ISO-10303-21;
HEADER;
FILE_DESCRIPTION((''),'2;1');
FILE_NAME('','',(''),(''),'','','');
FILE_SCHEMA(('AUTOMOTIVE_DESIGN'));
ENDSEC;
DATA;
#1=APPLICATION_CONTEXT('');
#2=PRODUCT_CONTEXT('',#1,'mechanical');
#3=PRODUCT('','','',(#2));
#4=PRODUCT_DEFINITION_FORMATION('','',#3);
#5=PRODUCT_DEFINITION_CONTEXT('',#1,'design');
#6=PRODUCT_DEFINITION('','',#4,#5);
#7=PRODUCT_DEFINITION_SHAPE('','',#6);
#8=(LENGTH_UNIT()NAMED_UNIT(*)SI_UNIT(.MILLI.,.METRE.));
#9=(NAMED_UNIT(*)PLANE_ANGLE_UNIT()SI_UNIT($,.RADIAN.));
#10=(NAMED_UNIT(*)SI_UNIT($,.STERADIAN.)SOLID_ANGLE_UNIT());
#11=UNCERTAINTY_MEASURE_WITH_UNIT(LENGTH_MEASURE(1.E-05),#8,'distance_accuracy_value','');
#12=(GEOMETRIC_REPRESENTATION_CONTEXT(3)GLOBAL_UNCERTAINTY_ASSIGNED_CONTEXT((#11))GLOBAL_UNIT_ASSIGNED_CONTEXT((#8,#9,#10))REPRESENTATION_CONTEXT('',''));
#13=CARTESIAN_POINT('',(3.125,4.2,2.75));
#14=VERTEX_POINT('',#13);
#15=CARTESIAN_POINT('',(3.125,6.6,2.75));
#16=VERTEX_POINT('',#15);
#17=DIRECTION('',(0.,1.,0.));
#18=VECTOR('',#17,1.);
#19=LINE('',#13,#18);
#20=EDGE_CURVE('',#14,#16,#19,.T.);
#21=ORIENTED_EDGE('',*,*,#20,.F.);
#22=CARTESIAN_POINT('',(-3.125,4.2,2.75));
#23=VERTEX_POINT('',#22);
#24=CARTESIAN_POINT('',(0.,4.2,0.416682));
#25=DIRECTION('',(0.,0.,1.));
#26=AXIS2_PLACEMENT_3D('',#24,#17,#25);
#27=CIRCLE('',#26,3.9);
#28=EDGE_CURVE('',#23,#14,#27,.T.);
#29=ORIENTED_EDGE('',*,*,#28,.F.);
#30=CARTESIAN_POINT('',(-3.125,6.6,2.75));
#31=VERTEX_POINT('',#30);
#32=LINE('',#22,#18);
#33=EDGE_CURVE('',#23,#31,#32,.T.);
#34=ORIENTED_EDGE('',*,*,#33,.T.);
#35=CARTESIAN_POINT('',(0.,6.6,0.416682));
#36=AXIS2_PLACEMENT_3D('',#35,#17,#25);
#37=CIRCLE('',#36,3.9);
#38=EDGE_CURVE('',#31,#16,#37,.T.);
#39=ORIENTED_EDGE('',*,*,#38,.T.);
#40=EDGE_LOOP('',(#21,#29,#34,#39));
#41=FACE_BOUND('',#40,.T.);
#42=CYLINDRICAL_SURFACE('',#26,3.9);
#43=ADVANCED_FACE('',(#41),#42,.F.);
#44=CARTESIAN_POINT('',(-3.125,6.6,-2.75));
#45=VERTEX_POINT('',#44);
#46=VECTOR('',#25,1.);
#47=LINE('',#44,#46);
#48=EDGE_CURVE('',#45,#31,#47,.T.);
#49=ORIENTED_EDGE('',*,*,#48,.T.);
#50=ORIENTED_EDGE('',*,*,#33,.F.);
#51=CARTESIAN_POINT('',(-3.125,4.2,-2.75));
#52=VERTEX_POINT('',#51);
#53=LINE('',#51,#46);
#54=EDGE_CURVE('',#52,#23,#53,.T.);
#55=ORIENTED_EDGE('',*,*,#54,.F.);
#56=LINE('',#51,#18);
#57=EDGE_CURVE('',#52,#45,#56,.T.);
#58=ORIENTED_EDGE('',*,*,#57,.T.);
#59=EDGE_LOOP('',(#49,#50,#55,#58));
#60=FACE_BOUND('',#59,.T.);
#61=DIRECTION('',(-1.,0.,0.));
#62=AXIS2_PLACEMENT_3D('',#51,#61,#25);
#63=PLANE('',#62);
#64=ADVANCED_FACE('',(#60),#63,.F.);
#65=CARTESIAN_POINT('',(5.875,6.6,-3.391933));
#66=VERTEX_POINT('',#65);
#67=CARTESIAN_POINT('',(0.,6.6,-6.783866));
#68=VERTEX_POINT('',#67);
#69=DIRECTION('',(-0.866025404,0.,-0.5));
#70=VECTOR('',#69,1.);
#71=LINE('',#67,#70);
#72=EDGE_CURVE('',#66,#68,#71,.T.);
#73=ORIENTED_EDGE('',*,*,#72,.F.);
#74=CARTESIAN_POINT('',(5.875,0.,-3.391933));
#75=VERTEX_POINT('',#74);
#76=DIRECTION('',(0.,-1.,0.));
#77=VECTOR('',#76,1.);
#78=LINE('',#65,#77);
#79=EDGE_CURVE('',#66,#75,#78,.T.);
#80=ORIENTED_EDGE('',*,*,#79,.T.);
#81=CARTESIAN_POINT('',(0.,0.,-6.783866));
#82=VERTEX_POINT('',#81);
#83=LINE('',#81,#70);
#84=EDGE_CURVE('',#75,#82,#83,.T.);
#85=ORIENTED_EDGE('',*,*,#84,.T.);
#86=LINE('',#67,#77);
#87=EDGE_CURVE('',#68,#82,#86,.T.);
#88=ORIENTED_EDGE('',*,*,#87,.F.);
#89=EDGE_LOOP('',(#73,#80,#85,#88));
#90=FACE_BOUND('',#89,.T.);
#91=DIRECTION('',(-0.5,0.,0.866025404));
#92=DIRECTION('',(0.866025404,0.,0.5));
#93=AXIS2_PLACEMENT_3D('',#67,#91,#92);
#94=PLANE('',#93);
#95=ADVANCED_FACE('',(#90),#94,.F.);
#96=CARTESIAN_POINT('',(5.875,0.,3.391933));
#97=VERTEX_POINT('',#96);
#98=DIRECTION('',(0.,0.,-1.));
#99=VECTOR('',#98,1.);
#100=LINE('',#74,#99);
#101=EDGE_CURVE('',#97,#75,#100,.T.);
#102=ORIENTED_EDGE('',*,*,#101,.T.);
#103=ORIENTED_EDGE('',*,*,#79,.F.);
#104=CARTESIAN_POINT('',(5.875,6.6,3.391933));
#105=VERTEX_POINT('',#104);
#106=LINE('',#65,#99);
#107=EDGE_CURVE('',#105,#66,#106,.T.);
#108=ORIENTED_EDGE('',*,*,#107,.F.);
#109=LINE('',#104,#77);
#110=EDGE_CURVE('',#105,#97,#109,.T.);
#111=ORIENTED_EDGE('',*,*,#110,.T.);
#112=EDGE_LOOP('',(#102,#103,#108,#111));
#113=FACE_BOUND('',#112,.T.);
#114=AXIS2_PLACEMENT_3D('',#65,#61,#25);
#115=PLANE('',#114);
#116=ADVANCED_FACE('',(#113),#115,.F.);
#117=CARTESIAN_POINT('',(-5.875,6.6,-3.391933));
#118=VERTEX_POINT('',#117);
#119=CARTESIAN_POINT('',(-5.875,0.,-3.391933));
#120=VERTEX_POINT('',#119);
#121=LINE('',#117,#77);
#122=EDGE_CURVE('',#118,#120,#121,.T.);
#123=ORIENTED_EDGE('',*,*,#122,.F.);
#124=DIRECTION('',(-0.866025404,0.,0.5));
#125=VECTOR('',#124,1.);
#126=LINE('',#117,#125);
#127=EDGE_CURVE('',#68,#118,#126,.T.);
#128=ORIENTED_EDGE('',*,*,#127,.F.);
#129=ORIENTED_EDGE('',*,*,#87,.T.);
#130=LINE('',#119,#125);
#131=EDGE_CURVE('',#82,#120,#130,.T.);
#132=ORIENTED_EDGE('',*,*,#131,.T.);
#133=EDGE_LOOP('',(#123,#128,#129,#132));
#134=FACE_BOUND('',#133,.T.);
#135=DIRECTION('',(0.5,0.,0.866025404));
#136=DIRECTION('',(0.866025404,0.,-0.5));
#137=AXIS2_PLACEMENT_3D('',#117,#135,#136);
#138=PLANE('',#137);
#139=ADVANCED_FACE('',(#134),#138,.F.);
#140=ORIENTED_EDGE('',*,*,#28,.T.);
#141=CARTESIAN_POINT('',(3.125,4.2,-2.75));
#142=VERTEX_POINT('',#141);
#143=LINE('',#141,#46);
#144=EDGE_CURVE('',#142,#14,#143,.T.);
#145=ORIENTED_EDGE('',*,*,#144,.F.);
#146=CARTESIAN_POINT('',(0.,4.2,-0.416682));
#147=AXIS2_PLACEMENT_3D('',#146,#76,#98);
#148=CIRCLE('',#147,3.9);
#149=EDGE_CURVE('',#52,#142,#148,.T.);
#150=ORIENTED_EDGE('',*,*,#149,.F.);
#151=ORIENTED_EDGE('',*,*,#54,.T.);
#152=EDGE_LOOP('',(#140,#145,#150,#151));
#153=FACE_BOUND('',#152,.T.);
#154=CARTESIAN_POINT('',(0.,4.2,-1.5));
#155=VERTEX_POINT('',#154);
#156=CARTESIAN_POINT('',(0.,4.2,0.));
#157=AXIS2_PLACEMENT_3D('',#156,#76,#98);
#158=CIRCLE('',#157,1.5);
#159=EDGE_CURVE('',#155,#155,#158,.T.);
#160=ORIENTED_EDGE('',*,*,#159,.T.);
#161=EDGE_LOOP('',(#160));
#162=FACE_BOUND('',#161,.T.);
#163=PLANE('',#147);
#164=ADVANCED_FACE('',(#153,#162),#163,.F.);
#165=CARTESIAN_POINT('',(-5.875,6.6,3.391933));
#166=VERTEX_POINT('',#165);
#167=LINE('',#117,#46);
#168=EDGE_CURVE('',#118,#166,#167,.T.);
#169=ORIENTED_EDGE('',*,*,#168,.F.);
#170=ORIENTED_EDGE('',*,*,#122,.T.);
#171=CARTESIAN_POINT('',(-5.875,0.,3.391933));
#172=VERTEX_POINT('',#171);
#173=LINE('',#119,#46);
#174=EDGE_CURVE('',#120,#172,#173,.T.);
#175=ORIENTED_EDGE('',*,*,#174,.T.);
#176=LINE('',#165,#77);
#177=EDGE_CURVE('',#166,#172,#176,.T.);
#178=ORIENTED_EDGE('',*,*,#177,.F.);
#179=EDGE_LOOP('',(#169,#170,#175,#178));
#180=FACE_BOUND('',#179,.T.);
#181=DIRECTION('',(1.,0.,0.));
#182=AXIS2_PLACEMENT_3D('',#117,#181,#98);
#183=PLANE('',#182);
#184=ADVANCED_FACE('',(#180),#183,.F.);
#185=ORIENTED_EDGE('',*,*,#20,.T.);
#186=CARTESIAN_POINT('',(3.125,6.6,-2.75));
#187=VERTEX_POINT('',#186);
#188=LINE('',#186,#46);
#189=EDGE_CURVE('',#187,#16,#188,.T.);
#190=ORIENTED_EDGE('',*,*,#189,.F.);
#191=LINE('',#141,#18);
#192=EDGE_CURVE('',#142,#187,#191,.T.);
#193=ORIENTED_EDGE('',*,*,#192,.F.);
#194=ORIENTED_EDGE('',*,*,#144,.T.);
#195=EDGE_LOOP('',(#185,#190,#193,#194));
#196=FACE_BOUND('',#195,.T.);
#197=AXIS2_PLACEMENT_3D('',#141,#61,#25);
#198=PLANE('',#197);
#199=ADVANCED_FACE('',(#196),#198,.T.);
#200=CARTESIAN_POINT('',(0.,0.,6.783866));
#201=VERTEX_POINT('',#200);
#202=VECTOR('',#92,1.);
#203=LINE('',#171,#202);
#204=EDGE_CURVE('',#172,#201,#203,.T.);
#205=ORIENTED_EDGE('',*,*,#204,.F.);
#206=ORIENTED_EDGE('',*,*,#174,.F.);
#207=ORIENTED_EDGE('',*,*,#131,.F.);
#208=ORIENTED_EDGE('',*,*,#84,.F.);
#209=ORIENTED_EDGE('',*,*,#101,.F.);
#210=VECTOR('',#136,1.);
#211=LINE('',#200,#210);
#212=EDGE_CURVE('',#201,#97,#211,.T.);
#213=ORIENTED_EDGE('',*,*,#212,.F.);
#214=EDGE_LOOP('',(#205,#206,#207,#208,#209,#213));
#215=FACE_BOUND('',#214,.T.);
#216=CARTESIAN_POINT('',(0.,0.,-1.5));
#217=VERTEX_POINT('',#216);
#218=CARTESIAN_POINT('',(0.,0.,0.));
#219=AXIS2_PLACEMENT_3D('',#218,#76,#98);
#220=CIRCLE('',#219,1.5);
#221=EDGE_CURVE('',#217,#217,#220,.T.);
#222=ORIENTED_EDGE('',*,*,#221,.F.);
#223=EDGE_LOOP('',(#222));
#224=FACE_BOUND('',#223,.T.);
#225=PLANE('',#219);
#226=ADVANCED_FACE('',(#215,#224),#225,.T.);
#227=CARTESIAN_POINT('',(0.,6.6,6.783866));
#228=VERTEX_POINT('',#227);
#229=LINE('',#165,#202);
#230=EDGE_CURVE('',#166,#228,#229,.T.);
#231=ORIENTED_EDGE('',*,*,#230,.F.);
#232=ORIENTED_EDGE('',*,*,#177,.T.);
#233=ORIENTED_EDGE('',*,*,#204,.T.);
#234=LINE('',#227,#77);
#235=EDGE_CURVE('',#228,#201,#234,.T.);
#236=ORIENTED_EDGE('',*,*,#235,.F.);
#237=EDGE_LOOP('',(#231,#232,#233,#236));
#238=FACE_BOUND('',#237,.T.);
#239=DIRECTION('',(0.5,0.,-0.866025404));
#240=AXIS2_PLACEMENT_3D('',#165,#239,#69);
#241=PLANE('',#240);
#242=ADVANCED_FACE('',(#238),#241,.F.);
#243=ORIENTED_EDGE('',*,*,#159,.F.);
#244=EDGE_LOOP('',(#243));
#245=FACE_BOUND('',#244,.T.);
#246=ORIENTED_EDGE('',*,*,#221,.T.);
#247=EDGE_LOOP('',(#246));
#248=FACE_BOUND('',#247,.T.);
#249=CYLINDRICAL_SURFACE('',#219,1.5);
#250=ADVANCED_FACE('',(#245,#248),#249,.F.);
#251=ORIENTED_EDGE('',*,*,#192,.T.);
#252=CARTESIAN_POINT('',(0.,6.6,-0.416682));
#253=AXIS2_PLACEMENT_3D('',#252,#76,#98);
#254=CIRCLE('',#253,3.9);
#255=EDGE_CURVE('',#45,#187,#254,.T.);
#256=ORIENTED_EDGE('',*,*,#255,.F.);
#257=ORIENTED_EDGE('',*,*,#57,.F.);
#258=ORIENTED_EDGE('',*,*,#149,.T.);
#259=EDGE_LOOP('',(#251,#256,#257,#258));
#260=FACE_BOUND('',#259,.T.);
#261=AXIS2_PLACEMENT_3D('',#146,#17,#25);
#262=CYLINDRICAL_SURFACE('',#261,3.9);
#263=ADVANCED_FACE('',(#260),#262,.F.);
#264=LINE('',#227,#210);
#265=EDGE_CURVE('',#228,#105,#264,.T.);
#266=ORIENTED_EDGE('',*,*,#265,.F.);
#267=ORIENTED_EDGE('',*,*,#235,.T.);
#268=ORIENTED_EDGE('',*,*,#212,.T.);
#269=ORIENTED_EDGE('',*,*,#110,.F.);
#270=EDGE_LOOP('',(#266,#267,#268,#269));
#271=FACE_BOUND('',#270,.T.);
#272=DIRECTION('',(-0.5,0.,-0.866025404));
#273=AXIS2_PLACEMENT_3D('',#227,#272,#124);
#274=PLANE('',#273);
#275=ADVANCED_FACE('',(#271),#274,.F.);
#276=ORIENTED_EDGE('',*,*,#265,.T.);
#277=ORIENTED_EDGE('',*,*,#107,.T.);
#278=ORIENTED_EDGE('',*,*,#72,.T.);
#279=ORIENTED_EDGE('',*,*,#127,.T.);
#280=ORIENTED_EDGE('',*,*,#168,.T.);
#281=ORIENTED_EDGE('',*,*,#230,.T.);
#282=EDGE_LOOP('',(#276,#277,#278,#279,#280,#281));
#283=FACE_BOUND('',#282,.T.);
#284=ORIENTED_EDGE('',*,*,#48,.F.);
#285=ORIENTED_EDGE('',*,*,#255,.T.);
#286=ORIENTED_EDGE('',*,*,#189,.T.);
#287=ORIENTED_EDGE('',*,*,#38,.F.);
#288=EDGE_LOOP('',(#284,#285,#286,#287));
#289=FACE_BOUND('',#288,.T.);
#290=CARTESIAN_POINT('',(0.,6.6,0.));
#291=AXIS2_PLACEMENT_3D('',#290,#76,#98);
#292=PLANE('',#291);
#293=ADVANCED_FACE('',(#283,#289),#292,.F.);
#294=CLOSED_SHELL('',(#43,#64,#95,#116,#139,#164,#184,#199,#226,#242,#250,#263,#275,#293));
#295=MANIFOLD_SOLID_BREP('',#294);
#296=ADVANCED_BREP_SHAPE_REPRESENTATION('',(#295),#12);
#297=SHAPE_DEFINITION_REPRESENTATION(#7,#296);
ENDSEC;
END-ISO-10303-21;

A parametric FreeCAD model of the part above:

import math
import FreeCAD as App
import Part
import Sketcher
from FreeCAD import Vector
Q = App.Units.Quantity


def add_polygon(sketch, points):
    """Adds a closed chain of lines whose ends are joined by coincident constraints."""
    first, n = sketch.GeometryCount, len(points)
    for a, b in zip(points, points[1:] + points[:1]):
        sketch.addGeometry(Part.LineSegment(App.Vector(*a, 0), App.Vector(*b, 0)), False)
    for i in range(n):
        sketch.addConstraint(Sketcher.Constraint("Coincident", first + i, 2, first + (i + 1) % n, 1))

doc = App.newDocument("Part")
body = doc.addObject("PartDesign::Body", "Body")

# Sketch on XZ plane
sketch1 = body.newObject("Sketcher::SketchObject", "Sketch")
sketch1.AttachmentSupport = (doc.getObject("XZ_Plane"), [""])
sketch1.MapMode = "FlatFace"
add_polygon(sketch1, [(-5.875, -3.391933), (-5.875, 3.391933), (0, 6.783866), (5.875, 3.391933), (5.875, -3.391933), (0, -6.783866)])  # lines 0-5
sketch1.addConstraint([
    Sketcher.Constraint("Vertical", 0),
    Sketcher.Constraint("Vertical", 3),
    Sketcher.Constraint("Symmetric", 0, 2, 3, 2, -1, 1),
    Sketcher.Constraint("Symmetric", 1, 2, 4, 2, -1, 1),
    Sketcher.Constraint("PointOnObject", 1, 2, -2),
    Sketcher.Constraint("Parallel", 2, 5),
    Sketcher.Constraint("Horizontal", 0, 2, 2, 2),
    Sketcher.Constraint("Angle", 1, Q("30 deg")),
    Sketcher.Constraint("DistanceX", 0, 2, 2, 2, Q("11.75 mm")),
    Sketcher.Constraint("DistanceY", 3, 2, 1, 2, Q("10.175798 mm")),
])
pad1 = body.newObject("PartDesign::Pad", "Pad")
pad1.Profile = sketch1
pad1.Length = 6.6
pad1.Reversed = True

# Sketch on XZ plane
sketch2 = body.newObject("Sketcher::SketchObject", "Sketch001")
sketch2.AttachmentSupport = (doc.getObject("XZ_Plane"), [""])
sketch2.MapMode = "FlatFace"
sketch2.AttachmentOffset = App.Placement(Vector(0, 0, -6.6), App.Rotation())
sketch2.addGeometry([
    Part.LineSegment(Vector(-3.125, -2.75, 0), Vector(-3.125, 2.75, 0)),
    Part.ArcOfCircle(Part.Circle(Vector(0, 0.416682, 0), Vector(0, 0, 1), 3.9), math.radians(36.747296), math.radians(143.252704)),
    Part.LineSegment(Vector(3.125, 2.75, 0), Vector(3.125, -2.75, 0)),
    Part.ArcOfCircle(Part.Circle(Vector(0, -0.416682, 0), Vector(0, 0, 1), 3.9), math.radians(-143.252704), math.radians(-36.747296)),
], False)
sketch2.addConstraint([
    Sketcher.Constraint("Coincident", 0, 2, 1, 2),
    Sketcher.Constraint("Coincident", 1, 1, 2, 1),
    Sketcher.Constraint("Coincident", 2, 2, 3, 2),
    Sketcher.Constraint("Coincident", 3, 1, 0, 1),
    Sketcher.Constraint("Vertical", 0),
    Sketcher.Constraint("Vertical", 2),
    Sketcher.Constraint("Equal", 1, 3),
    Sketcher.Constraint("Symmetric", 1, 3, 3, 3, -1, 1),
    Sketcher.Constraint("Symmetric", 0, 2, 1, 1, -2),
    Sketcher.Constraint("Radius", 1, Q("3.9 mm")),
    Sketcher.Constraint("DistanceY", 0, 1, 0, 2, Q("5.5 mm")),
    Sketcher.Constraint("DistanceX", 0, 2, 1, 1, Q("6.25 mm")),
])
pocket1 = body.newObject("PartDesign::Pocket", "Pocket")
pocket1.Profile = sketch2
pocket1.Length = 2.4
pocket1.Reversed = True

# Sketch on XZ plane
sketch3 = body.newObject("Sketcher::SketchObject", "Sketch002")
sketch3.AttachmentSupport = (doc.getObject("XZ_Plane"), [""])
sketch3.MapMode = "FlatFace"
sketch3.addGeometry(Part.Circle(Vector(0, 0, 0), Vector(0, 0, 1), 1.5), False)
sketch3.addConstraint([
    Sketcher.Constraint("Coincident", 0, 3, -1, 1),
    Sketcher.Constraint("Diameter", 0, Q("3 mm")),
])
doc.recompute()
hole = body.newObject("PartDesign::Hole", "Hole")
hole.Profile = sketch3
hole.ThreadType = "None"
hole.Diameter = 3
hole.DepthType = "ThroughAll"

doc.recompute()
